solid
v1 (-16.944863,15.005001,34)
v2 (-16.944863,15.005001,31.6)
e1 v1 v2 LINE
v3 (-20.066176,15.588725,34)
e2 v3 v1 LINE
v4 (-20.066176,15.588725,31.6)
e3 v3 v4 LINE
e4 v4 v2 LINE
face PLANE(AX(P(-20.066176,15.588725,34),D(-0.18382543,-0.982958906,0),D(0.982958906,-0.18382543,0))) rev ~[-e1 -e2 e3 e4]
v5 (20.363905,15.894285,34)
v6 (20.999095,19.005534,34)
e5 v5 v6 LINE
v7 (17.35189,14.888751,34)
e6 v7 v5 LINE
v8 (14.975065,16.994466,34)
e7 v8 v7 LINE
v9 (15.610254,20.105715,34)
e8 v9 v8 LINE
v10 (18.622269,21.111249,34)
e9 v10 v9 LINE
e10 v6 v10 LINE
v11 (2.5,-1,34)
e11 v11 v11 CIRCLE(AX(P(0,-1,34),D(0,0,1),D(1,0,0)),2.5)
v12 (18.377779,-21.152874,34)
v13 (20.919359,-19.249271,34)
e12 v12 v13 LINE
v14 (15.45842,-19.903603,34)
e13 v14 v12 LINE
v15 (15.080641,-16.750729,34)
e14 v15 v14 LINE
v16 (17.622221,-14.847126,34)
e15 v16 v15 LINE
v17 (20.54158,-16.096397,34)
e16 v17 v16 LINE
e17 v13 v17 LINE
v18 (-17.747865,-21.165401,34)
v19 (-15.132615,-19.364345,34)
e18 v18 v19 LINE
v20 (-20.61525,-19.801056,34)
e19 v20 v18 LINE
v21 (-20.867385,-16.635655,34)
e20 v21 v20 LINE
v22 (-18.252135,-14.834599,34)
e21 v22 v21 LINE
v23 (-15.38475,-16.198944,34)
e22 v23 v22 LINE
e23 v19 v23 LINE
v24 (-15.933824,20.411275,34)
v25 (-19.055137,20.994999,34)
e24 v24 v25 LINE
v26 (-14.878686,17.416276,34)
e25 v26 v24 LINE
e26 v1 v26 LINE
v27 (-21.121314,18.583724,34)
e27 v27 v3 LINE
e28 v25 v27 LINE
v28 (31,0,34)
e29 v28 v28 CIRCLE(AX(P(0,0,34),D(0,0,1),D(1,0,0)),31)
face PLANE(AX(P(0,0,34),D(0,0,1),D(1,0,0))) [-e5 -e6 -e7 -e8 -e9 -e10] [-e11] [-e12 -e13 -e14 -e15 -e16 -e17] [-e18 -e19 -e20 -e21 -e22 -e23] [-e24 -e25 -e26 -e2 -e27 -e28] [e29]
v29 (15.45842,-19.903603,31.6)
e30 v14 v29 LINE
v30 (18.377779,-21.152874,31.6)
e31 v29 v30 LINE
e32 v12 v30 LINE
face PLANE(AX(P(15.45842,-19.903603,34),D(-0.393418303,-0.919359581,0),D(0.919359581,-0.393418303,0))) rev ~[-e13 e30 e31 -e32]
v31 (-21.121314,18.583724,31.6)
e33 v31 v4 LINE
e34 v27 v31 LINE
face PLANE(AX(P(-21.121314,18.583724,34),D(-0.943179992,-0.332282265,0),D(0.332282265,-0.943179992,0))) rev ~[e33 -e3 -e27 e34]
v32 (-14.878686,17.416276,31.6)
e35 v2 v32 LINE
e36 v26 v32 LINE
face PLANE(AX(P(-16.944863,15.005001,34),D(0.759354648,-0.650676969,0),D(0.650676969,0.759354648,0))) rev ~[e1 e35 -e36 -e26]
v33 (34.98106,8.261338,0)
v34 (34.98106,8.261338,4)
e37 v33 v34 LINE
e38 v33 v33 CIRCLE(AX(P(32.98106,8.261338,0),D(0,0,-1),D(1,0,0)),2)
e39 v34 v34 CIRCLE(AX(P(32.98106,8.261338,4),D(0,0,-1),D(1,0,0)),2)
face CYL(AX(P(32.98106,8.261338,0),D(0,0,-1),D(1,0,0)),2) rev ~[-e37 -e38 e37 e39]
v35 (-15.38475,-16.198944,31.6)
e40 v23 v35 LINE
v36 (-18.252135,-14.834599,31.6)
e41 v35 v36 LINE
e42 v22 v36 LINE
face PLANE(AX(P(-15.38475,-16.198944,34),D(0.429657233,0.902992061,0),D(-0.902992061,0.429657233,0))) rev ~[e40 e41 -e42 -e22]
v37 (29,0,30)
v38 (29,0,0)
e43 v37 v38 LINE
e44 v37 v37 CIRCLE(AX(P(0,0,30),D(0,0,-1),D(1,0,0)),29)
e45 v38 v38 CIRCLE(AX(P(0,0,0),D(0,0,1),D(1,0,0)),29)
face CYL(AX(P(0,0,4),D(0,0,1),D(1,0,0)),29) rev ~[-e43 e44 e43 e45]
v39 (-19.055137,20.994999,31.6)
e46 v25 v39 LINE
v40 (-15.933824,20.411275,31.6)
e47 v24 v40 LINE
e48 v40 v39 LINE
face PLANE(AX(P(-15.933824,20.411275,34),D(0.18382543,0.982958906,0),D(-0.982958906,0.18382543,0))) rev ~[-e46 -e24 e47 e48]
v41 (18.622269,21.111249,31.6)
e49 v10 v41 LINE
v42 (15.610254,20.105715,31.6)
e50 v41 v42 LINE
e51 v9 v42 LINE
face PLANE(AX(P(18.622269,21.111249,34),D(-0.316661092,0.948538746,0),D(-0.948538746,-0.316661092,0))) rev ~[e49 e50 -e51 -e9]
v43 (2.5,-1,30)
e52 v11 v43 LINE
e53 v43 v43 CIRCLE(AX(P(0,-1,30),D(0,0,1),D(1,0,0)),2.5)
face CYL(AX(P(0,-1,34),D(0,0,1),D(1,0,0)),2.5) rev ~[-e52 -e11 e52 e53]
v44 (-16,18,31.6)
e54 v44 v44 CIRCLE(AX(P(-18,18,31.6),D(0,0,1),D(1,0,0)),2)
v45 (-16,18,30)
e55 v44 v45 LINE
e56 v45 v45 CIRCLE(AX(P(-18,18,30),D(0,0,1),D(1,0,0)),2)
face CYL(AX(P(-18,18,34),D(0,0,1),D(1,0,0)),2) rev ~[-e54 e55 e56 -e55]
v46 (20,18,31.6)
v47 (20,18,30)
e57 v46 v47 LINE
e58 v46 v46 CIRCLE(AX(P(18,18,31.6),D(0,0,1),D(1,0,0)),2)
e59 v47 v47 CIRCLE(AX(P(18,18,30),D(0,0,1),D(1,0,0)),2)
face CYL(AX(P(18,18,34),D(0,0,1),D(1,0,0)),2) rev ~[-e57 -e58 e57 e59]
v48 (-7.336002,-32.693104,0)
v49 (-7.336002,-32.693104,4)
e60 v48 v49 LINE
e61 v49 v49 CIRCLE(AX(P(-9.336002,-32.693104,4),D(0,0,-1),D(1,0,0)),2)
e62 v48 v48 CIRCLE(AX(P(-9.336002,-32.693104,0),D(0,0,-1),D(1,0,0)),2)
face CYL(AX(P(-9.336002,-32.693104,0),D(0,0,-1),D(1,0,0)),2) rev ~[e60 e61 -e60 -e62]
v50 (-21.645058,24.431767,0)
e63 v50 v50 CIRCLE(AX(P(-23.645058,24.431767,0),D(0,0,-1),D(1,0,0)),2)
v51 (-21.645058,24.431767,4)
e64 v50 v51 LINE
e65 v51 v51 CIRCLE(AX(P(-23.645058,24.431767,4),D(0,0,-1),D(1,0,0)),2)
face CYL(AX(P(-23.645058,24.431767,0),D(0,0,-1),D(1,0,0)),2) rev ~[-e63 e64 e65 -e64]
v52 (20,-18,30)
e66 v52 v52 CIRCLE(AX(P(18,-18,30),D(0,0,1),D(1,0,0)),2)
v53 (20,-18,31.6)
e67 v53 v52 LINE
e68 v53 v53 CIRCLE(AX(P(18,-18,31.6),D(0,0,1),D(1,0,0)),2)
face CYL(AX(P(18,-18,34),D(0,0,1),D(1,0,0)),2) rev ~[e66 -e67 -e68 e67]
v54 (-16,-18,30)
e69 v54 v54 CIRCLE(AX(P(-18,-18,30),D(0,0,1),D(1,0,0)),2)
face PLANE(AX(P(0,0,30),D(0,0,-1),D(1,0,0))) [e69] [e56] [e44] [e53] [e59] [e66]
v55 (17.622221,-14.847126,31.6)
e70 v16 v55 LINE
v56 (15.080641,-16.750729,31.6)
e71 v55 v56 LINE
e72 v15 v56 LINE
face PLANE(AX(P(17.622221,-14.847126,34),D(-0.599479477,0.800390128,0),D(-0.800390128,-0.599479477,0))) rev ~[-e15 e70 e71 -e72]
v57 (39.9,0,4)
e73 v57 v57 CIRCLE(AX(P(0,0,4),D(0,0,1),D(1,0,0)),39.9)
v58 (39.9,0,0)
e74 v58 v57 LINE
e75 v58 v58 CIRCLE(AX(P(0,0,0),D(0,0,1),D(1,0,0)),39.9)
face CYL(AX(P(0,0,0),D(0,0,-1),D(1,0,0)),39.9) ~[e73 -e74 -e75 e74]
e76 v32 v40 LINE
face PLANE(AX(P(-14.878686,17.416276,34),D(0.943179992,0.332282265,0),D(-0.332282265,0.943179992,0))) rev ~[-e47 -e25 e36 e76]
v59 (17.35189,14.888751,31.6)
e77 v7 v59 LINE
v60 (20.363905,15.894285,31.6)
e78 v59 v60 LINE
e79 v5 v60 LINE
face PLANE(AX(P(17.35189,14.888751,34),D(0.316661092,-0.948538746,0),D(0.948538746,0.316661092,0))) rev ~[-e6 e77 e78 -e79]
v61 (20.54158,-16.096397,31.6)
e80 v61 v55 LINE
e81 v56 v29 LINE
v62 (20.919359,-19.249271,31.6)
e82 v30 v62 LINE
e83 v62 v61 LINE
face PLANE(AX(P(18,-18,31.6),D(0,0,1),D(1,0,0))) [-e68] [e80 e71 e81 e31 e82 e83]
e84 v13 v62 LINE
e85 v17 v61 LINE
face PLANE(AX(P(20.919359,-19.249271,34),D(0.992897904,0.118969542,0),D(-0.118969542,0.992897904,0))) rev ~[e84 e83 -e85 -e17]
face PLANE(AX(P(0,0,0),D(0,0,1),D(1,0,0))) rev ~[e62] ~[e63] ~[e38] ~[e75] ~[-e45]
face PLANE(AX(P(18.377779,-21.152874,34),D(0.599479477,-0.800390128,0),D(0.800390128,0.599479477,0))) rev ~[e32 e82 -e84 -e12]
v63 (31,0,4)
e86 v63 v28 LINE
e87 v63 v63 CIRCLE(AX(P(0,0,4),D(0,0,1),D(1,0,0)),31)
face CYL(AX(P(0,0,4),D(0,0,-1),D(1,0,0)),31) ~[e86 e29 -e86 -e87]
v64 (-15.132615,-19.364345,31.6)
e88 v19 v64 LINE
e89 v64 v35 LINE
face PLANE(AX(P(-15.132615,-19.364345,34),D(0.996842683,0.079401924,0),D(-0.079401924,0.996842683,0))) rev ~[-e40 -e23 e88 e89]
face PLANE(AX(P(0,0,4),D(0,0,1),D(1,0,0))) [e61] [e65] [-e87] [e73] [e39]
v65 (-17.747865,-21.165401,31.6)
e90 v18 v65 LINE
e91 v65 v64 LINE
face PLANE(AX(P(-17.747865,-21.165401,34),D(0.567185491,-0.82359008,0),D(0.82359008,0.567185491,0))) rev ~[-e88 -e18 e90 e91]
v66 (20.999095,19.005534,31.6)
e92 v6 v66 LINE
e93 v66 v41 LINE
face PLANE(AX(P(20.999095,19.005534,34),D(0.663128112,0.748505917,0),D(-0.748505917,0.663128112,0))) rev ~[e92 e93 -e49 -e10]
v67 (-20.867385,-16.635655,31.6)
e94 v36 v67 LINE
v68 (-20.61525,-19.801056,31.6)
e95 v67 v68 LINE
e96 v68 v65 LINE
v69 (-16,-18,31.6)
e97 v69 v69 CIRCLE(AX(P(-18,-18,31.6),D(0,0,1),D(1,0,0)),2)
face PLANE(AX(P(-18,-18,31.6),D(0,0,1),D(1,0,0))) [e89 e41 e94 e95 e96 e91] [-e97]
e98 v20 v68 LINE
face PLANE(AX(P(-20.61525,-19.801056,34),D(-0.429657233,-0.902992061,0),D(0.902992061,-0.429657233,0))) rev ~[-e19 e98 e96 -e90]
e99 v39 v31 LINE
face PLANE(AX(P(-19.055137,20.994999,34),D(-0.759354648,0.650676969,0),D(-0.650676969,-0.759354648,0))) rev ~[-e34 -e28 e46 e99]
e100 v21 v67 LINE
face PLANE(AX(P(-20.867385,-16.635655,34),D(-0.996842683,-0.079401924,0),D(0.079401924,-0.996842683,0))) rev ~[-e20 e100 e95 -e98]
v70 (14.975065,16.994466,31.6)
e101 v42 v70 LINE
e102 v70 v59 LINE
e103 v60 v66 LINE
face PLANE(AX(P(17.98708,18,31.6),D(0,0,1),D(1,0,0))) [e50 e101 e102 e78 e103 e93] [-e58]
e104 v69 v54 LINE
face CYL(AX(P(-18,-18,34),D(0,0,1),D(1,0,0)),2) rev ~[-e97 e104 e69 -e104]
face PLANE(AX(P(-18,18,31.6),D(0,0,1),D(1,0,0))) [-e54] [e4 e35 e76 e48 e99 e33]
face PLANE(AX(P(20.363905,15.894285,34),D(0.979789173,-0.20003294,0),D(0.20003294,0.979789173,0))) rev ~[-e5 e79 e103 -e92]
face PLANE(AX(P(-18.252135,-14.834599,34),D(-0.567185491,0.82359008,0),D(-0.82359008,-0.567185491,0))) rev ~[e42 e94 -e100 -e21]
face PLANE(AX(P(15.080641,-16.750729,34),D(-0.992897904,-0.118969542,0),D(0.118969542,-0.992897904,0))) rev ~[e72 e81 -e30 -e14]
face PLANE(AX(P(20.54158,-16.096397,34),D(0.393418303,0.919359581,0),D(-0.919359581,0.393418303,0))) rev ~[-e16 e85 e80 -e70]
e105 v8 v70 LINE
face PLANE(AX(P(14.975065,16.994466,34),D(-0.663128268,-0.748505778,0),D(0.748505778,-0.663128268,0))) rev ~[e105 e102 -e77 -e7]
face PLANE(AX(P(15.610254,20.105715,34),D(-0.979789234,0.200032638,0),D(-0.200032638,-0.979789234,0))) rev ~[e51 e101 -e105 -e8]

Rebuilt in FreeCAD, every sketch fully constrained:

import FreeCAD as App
import Part
import Sketcher
from FreeCAD import Vector


def add_polygon(sketch, points):
    """Adds a closed chain of lines whose ends are joined by coincident constraints."""
    first, n = sketch.GeometryCount, len(points)
    for a, b in zip(points, points[1:] + points[:1]):
        sketch.addGeometry(Part.LineSegment(App.Vector(*a, 0), App.Vector(*b, 0)), False)
    for i in range(n):
        sketch.addConstraint(Sketcher.Constraint("Coincident", first + i, 2, first + (i + 1) % n, 1))

doc = App.newDocument("Part")
body = doc.addObject("PartDesign::Body", "Body")

# Sketch on XY plane
sketch1 = body.newObject("Sketcher::SketchObject", "Sketch")
sketch1.AttachmentSupport = (doc.getObject("XY_Plane"), [""])
sketch1.MapMode = "FlatFace"
sketch1.addGeometry(Part.Circle(Vector(0, 0, 0), Vector(0, 0, 1), 40), False)
sketch1.addConstraint([
    Sketcher.Constraint("Coincident", 0, 3, -1, 1),
    Sketcher.Constraint("Diameter", 0, 79.8),
])
pad1 = body.newObject("PartDesign::Pad", "Pad")
pad1.Profile = sketch1
pad1.Length = 4

# Sketch on XY plane
sketch2 = body.newObject("Sketcher::SketchObject", "Sketch001")
sketch2.AttachmentSupport = (doc.getObject("XY_Plane"), [""])
sketch2.MapMode = "FlatFace"
sketch2.AttachmentOffset = App.Placement(Vector(0, 0, 4), App.Rotation())
sketch2.addGeometry(Part.Circle(Vector(0, 0, 0), Vector(0, 0, 1), 29), False)
sketch2.addConstraint([
    Sketcher.Constraint("Coincident", 0, 3, -1, 1),
    Sketcher.Constraint("Diameter", 0, 58.0),
])
pocket1 = body.newObject("PartDesign::Pocket", "Pocket")
pocket1.Profile = sketch2
pocket1.Length = 4

# Sketch on XY plane
sketch3 = body.newObject("Sketcher::SketchObject", "Sketch002")
sketch3.AttachmentSupport = (doc.getObject("XY_Plane"), [""])
sketch3.MapMode = "FlatFace"
sketch3.AttachmentOffset = App.Placement(Vector(0, 0, 4), App.Rotation())
sketch3.addGeometry(Part.Circle(Vector(0, 0, 0), Vector(0, 0, 1), 31), False)
sketch3.addConstraint([
    Sketcher.Constraint("Coincident", 0, 3, -1, 1),
    Sketcher.Constraint("Diameter", 0, 62.0),
])
pad2 = body.newObject("PartDesign::Pad", "Pad001")
pad2.Profile = sketch3
pad2.Length = 30

# Sketch on XY plane
sketch4 = body.newObject("Sketcher::SketchObject", "Sketch003")
sketch4.AttachmentSupport = (doc.getObject("XY_Plane"), [""])
sketch4.MapMode = "FlatFace"
sketch4.AttachmentOffset = App.Placement(Vector(0, 0, 4), App.Rotation())
sketch4.addGeometry(Part.Circle(Vector(0, 0, 0), Vector(0, 0, 1), 29), False)
sketch4.addConstraint([
    Sketcher.Constraint("Coincident", 0, 3, -1, 1),
    Sketcher.Constraint("Diameter", 0, 58.0),
])
pocket2 = body.newObject("PartDesign::Pocket", "Pocket001")
pocket2.Profile = sketch4
pocket2.Length = 26
pocket2.Reversed = True

# Sketch on XY plane
sketch5 = body.newObject("Sketcher::SketchObject", "Sketch004")
sketch5.AttachmentSupport = (doc.getObject("XY_Plane"), [""])
sketch5.MapMode = "FlatFace"
sketch5.addGeometry([
    Part.Circle(Vector(-23.6, 24.4, 0), Vector(0, 0, 1), 2),
    Part.Circle(Vector(-9.3, -32.7, 0), Vector(0, 0, 1), 2),
    Part.Circle(Vector(33, 8.3, 0), Vector(0, 0, 1), 2),
], False)
sketch5.addConstraint([
    Sketcher.Constraint("Equal", 0, 1),
    Sketcher.Constraint("Equal", 1, 2),
    Sketcher.Constraint("Diameter", 0, 4.0),
    Sketcher.Constraint("DistanceX", -1, 1, 2, 3, 32.98106),
    Sketcher.Constraint("DistanceY", 1, 3, 0, 3, 57.124871),
    Sketcher.Constraint("DistanceY", 2, 3, 0, 3, 16.170429),
    Sketcher.Constraint("DistanceX", 0, 3, -1, 1, 23.645058),
    Sketcher.Constraint("DistanceY", -1, 1, 0, 3, 24.431767),
    Sketcher.Constraint("DistanceX", 1, 3, -1, 1, 9.336002),
])
pocket3 = body.newObject("PartDesign::Pocket", "Pocket002")
pocket3.Profile = sketch5
pocket3.Length = 4
pocket3.Reversed = True

# Sketch on XY plane
sketch6 = body.newObject("Sketcher::SketchObject", "Sketch005")
sketch6.AttachmentSupport = (doc.getObject("XY_Plane"), [""])
sketch6.MapMode = "FlatFace"
sketch6.AttachmentOffset = App.Placement(Vector(0, 0, 34), App.Rotation())
sketch6.addGeometry([
    Part.Circle(Vector(18, 18, 0), Vector(0, 0, 1), 2),
    Part.Circle(Vector(-18, 18, 0), Vector(0, 0, 1), 2),
    Part.Circle(Vector(-18, -18, 0), Vector(0, 0, 1), 2),
    Part.Circle(Vector(18, -18, 0), Vector(0, 0, 1), 2),
], False)
sketch6.addConstraint([
    Sketcher.Constraint("Equal", 0, 1),
    Sketcher.Constraint("Equal", 1, 2),
    Sketcher.Constraint("Equal", 2, 3),
    Sketcher.Constraint("Symmetric", 0, 3, 2, 3, -1, 1),
    Sketcher.Constraint("Symmetric", 1, 3, 3, 3, -1, 1),
    Sketcher.Constraint("Symmetric", 0, 3, 1, 3, -2),
    Sketcher.Constraint("Diameter", 0, 4.0),
    Sketcher.Constraint("DistanceX", -1, 1, 0, 3, 18.0),
    Sketcher.Constraint("DistanceY", -1, 1, 0, 3, 18.0),
])
pocket4 = body.newObject("PartDesign::Pocket", "Pocket003")
pocket4.Profile = sketch6
pocket4.Length = 4

# Sketch on XY plane
sketch7 = body.newObject("Sketcher::SketchObject", "Sketch006")
sketch7.AttachmentSupport = (doc.getObject("XY_Plane"), [""])
sketch7.MapMode = "FlatFace"
sketch7.AttachmentOffset = App.Placement(Vector(0, 0, 34), App.Rotation())
sketch7.addGeometry(Part.Circle(Vector(0, -1, 0), Vector(0, 0, 1), 2.5), False)
sketch7.addConstraint([
    Sketcher.Constraint("PointOnObject", 0, 3, -2),
    Sketcher.Constraint("Diameter", 0, 5.0),
    Sketcher.Constraint("DistanceY", 0, 3, -1, 1, 1.0),
])
pocket5 = body.newObject("PartDesign::Pocket", "Pocket004")
pocket5.Profile = sketch7
pocket5.Length = 4

# Sketch on XY plane
sketch8 = body.newObject("Sketcher::SketchObject", "Sketch007")
sketch8.AttachmentSupport = (doc.getObject("XY_Plane"), [""])
sketch8.MapMode = "FlatFace"
sketch8.AttachmentOffset = App.Placement(Vector(0, 0, 34), App.Rotation())
add_polygon(sketch8, [(15.5, -19.9), (18.4, -21.2), (20.9, -19.2), (20.5, -16.1), (17.6, -14.8), (15.1, -16.8)])  # lines 0-5
add_polygon(sketch8, [(-20.6, -19.8), (-17.7, -21.2), (-15.1, -19.4), (-15.4, -16.2), (-18.3, -14.8), (-20.9, -16.6)])  # lines 6-11
add_polygon(sketch8, [(15, 17), (17.4, 14.9), (20.4, 15.9), (21, 19), (18.6, 21.1), (15.6, 20.1)])  # lines 12-17
add_polygon(sketch8, [(-20.1, 15.6), (-16.9, 15), (-14.9, 17.4), (-15.9, 20.4), (-19.1, 21), (-21.1, 18.6)])  # lines 18-23
sketch8.addConstraint([
    Sketcher.Constraint("Parallel", 0, 3),
    Sketcher.Constraint("Parallel", 1, 4),
    Sketcher.Constraint("Parallel", 2, 5),
    Sketcher.Constraint("Parallel", 6, 9),
    Sketcher.Constraint("Parallel", 7, 10),
    Sketcher.Constraint("Parallel", 8, 11),
    Sketcher.Constraint("Parallel", 12, 15),
    Sketcher.Constraint("Parallel", 13, 16),
    Sketcher.Constraint("Parallel", 14, 17),
    Sketcher.Constraint("Parallel", 18, 21),
    Sketcher.Constraint("Parallel", 19, 22),
    Sketcher.Constraint("Parallel", 20, 23),
    Sketcher.Constraint("Equal", 0, 1),
    Sketcher.Constraint("Equal", 1, 2),
    Sketcher.Constraint("Equal", 2, 3),
    Sketcher.Constraint("Equal", 5, 6),
    Sketcher.Constraint("Equal", 6, 7),
    Sketcher.Constraint("Equal", 7, 8),
    Sketcher.Constraint("Equal", 8, 9),
    Sketcher.Constraint("Equal", 11, 12),
    Sketcher.Constraint("Equal", 12, 13),
    Sketcher.Constraint("Equal", 13, 14),
    Sketcher.Constraint("Equal", 14, 15),
    Sketcher.Constraint("Equal", 17, 18),
    Sketcher.Constraint("Equal", 18, 19),
    Sketcher.Constraint("Equal", 19, 20),
    Sketcher.Constraint("Equal", 20, 21),
    Sketcher.Constraint("DistanceY", -1, 1, 18, 2, 15.005001),
    Sketcher.Constraint("DistanceY", -1, 1, 21, 2, 20.994999),
    Sketcher.Constraint("DistanceY", 19, 2, 20, 2, 2.994999),
    Sketcher.Constraint("DistanceY", 6, 2, -1, 1, 21.165401),
    Sketcher.Constraint("DistanceY", 9, 2, -1, 1, 14.834599),
    Sketcher.Constraint("DistanceX", 0, 2, 2, 2, 2.163801),
    Sketcher.Constraint("DistanceY", 7, 2, 8, 2, 3.165401),
    Sketcher.Constraint("DistanceX", 11, 2, 8, 2, 5.2305),
    Sketcher.Constraint("DistanceY", 12, 2, 15, 2, 6.222498),
    Sketcher.Constraint("DistanceX", -1, 1, 0, 2, 18.377779),
    Sketcher.Constraint("DistanceX", -1, 1, 1, 2, 20.919359),
    Sketcher.Constraint("DistanceY", 1, 2, -1, 1, 19.249271),
    Sketcher.Constraint("DistanceX", -1, 1, 3, 2, 17.622221),
    Sketcher.Constraint("DistanceY", 4, 2, -1, 1, 16.750729),
    Sketcher.Constraint("DistanceX", 8, 2, -1, 1, 15.38475),
    Sketcher.Constraint("DistanceX", -1, 1, 12, 2, 17.35189),
    Sketcher.Constraint("DistanceY", -1, 1, 12, 2, 14.888751),
    Sketcher.Constraint("DistanceX", -1, 1, 15, 2, 18.622269),
    Sketcher.Constraint("DistanceY", 3, 2, 13, 2, 30.741411),
    Sketcher.Constraint("DistanceX", 9, 2, 18, 2, 1.307272),
    Sketcher.Constraint("DistanceX", 19, 2, 17, 2, 29.853751),
])
pocket6 = body.newObject("PartDesign::Pocket", "Pocket005")
pocket6.Profile = sketch8
pocket6.Length = 2.4

doc.recompute()
